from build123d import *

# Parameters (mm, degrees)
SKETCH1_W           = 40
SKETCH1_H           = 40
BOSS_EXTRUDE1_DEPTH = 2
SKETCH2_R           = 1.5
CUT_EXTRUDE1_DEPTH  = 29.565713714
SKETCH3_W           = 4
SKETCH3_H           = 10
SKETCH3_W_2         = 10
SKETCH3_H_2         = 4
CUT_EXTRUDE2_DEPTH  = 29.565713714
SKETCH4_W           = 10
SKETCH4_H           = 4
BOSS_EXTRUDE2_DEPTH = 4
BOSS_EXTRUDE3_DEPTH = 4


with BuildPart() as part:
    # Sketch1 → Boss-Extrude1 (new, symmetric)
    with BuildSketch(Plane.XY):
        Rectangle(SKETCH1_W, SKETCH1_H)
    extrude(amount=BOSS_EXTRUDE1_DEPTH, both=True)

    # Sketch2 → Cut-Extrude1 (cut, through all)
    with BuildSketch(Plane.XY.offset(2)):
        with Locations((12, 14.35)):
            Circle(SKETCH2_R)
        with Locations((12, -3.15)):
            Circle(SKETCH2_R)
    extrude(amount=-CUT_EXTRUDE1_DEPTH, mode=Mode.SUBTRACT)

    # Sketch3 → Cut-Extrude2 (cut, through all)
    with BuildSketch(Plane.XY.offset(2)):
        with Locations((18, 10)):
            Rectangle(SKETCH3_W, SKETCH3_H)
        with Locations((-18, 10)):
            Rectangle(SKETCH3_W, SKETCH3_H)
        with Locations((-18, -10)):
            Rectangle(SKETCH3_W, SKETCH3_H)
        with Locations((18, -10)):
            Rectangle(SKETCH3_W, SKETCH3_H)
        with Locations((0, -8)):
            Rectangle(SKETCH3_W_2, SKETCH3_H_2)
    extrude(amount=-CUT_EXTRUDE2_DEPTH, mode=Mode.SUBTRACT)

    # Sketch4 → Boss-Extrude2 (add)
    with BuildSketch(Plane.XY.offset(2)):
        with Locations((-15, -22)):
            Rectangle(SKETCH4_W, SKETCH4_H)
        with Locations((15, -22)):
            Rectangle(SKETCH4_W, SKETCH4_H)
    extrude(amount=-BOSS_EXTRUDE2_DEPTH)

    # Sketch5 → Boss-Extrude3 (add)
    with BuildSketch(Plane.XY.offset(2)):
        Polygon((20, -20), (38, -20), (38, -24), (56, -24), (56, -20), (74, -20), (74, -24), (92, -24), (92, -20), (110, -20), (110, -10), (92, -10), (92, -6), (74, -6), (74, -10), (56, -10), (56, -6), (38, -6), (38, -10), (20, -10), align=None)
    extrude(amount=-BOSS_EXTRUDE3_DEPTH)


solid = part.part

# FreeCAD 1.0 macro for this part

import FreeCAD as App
import Part
import Sketcher
Q = App.Units.Quantity

doc = App.newDocument("Part")
body = doc.addObject("PartDesign::Body", "Body")

sketch1 = doc.addObject("Sketcher::SketchObject", "Sketch")
body.addObject(sketch1)
sketch1.AttachmentSupport = (doc.XY_Plane, [""])
sketch1.MapMode = "FlatFace"
sketch1.addGeometry([
    Part.LineSegment(App.Vector(-20, 20, 0), App.Vector(-20, -20, 0)),
    Part.LineSegment(App.Vector(-20, -20, 0), App.Vector(20, -20, 0)),
    Part.LineSegment(App.Vector(20, -20, 0), App.Vector(20, 20, 0)),
    Part.LineSegment(App.Vector(20, 20, 0), App.Vector(-20, 20, 0)),
], False)
sketch1.addConstraint([
    Sketcher.Constraint("Coincident", 0, 2, 1, 1),
    Sketcher.Constraint("Coincident", 1, 2, 2, 1),
    Sketcher.Constraint("Coincident", 2, 2, 3, 1),
    Sketcher.Constraint("Coincident", 3, 2, 0, 1),
    Sketcher.Constraint("Vertical", 0),
    Sketcher.Constraint("Horizontal", 1),
    Sketcher.Constraint("Vertical", 2),
    Sketcher.Constraint("Horizontal", 3),
    Sketcher.Constraint("Symmetric", 0, 2, 2, 2, -1, 1),
    Sketcher.Constraint("Equal", 3, 0),
    Sketcher.Constraint("DistanceX", 1, 1, 1, 2, Q("40 mm")),
])
pad1 = doc.addObject("PartDesign::Pad", "Pad")
body.addObject(pad1)
pad1.Profile = sketch1
pad1.Length = 4
pad1.Midplane = True

sketch2 = doc.addObject("Sketcher::SketchObject", "Sketch001")
body.addObject(sketch2)
sketch2.AttachmentSupport = (doc.XY_Plane, [""])
sketch2.MapMode = "FlatFace"
sketch2.AttachmentOffset = App.Placement(App.Vector(0, 0, 2), App.Rotation())
sketch2.addGeometry([
    Part.Circle(App.Vector(12, 14.3, 0), App.Vector(0, 0, 1), 1.5),
    Part.Circle(App.Vector(12, -3.1, 0), App.Vector(0, 0, 1), 1.5),
], False)
sketch2.addConstraint([
    Sketcher.Constraint("Equal", 0, 1),
    Sketcher.Constraint("Vertical", 0, 3, 1, 3),
    Sketcher.Constraint("Diameter", 0, Q("3 mm")),
    Sketcher.Constraint("DistanceX", -1, 1, 0, 3, Q("12 mm")),
    Sketcher.Constraint("DistanceY", 1, 3, 0, 3, Q("17.5 mm")),
    Sketcher.Constraint("DistanceY", -1, 1, 0, 3, Q("14.35 mm")),
])
pocket1 = doc.addObject("PartDesign::Pocket", "Pocket")
body.addObject(pocket1)
pocket1.Profile = sketch2
pocket1.Type = "ThroughAll"

sketch3 = doc.addObject("Sketcher::SketchObject", "Sketch002")
body.addObject(sketch3)
sketch3.AttachmentSupport = (doc.XY_Plane, [""])
sketch3.MapMode = "FlatFace"
sketch3.AttachmentOffset = App.Placement(App.Vector(0, 0, 2), App.Rotation())
sketch3.addGeometry([
    Part.LineSegment(App.Vector(16, 15, 0), App.Vector(16, 5, 0)),
    Part.LineSegment(App.Vector(16, 5, 0), App.Vector(20, 5, 0)),
    Part.LineSegment(App.Vector(20, 5, 0), App.Vector(20, 15, 0)),
    Part.LineSegment(App.Vector(20, 15, 0), App.Vector(16, 15, 0)),
    Part.LineSegment(App.Vector(-20, 15, 0), App.Vector(-20, 5, 0)),
    Part.LineSegment(App.Vector(-20, 5, 0), App.Vector(-16, 5, 0)),
    Part.LineSegment(App.Vector(-16, 5, 0), App.Vector(-16, 15, 0)),
    Part.LineSegment(App.Vector(-16, 15, 0), App.Vector(-20, 15, 0)),
    Part.LineSegment(App.Vector(-20, -5, 0), App.Vector(-20, -15, 0)),
    Part.LineSegment(App.Vector(-20, -15, 0), App.Vector(-16, -15, 0)),
    Part.LineSegment(App.Vector(-16, -15, 0), App.Vector(-16, -5, 0)),
    Part.LineSegment(App.Vector(-16, -5, 0), App.Vector(-20, -5, 0)),
    Part.LineSegment(App.Vector(16, -5, 0), App.Vector(16, -15, 0)),
    Part.LineSegment(App.Vector(16, -15, 0), App.Vector(20, -15, 0)),
    Part.LineSegment(App.Vector(20, -15, 0), App.Vector(20, -5, 0)),
    Part.LineSegment(App.Vector(20, -5, 0), App.Vector(16, -5, 0)),
    Part.LineSegment(App.Vector(-5, -6, 0), App.Vector(-5, -10, 0)),
    Part.LineSegment(App.Vector(-5, -10, 0), App.Vector(5, -10, 0)),
    Part.LineSegment(App.Vector(5, -10, 0), App.Vector(5, -6, 0)),
    Part.LineSegment(App.Vector(5, -6, 0), App.Vector(-5, -6, 0)),
], False)
sketch3.addConstraint([
    Sketcher.Constraint("Coincident", 0, 2, 1, 1),
    Sketcher.Constraint("Coincident", 1, 2, 2, 1),
    Sketcher.Constraint("Coincident", 2, 2, 3, 1),
    Sketcher.Constraint("Coincident", 3, 2, 0, 1),
    Sketcher.Constraint("Coincident", 4, 2, 5, 1),
    Sketcher.Constraint("Coincident", 5, 2, 6, 1),
    Sketcher.Constraint("Coincident", 6, 2, 7, 1),
    Sketcher.Constraint("Coincident", 7, 2, 4, 1),
    Sketcher.Constraint("Coincident", 8, 2, 9, 1),
    Sketcher.Constraint("Coincident", 9, 2, 10, 1),
    Sketcher.Constraint("Coincident", 10, 2, 11, 1),
    Sketcher.Constraint("Coincident", 11, 2, 8, 1),
    Sketcher.Constraint("Coincident", 12, 2, 13, 1),
    Sketcher.Constraint("Coincident", 13, 2, 14, 1),
    Sketcher.Constraint("Coincident", 14, 2, 15, 1),
    Sketcher.Constraint("Coincident", 15, 2, 12, 1),
    Sketcher.Constraint("Coincident", 16, 2, 17, 1),
    Sketcher.Constraint("Coincident", 17, 2, 18, 1),
    Sketcher.Constraint("Coincident", 18, 2, 19, 1),
    Sketcher.Constraint("Coincident", 19, 2, 16, 1),
    Sketcher.Constraint("Vertical", 0),
    Sketcher.Constraint("Horizontal", 1),
    Sketcher.Constraint("Vertical", 2),
    Sketcher.Constraint("Horizontal", 3),
    Sketcher.Constraint("Vertical", 4),
    Sketcher.Constraint("Horizontal", 5),
    Sketcher.Constraint("Vertical", 6),
    Sketcher.Constraint("Horizontal", 7),
    Sketcher.Constraint("Vertical", 8),
    Sketcher.Constraint("Horizontal", 9),
    Sketcher.Constraint("Vertical", 10),
    Sketcher.Constraint("Horizontal", 11),
    Sketcher.Constraint("Vertical", 12),
    Sketcher.Constraint("Horizontal", 13),
    Sketcher.Constraint("Vertical", 14),
    Sketcher.Constraint("Horizontal", 15),
    Sketcher.Constraint("Vertical", 16),
    Sketcher.Constraint("Horizontal", 17),
    Sketcher.Constraint("Vertical", 18),
    Sketcher.Constraint("Horizontal", 19),
    Sketcher.Constraint("Symmetric", 2, 2, 8, 2, -1, 1),
    Sketcher.Constraint("Symmetric", 0, 2, 10, 2, -1, 1),
    Sketcher.Constraint("Symmetric", 6, 2, 12, 2, -1, 1),
    Sketcher.Constraint("Symmetric", 4, 2, 14, 2, -1, 1),
    Sketcher.Constraint("Symmetric", 1, 2, 4, 2, -2),
    Sketcher.Constraint("Symmetric", 3, 2, 6, 2, -2),
    Sketcher.Constraint("Equal", 19, 0),
    Sketcher.Constraint("Equal", 15, 16),
    Sketcher.Constraint("DistanceX", 1, 1, 1, 2, Q("4 mm")),
    Sketcher.Constraint("DistanceX", 17, 1, 17, 2, Q("10 mm")),
    Sketcher.Constraint("DistanceX", -1, 1, 0, 2, Q("16 mm")),
    Sketcher.Constraint("DistanceY", -1, 1, 0, 2, Q("5 mm")),
    Sketcher.Constraint("DistanceX", 16, 2, -1, 1, Q("5 mm")),
    Sketcher.Constraint("DistanceY", 16, 2, -1, 1, Q("10 mm")),
])
pocket2 = doc.addObject("PartDesign::Pocket", "Pocket001")
body.addObject(pocket2)
pocket2.Profile = sketch3
pocket2.Type = "ThroughAll"

sketch4 = doc.addObject("Sketcher::SketchObject", "Sketch003")
body.addObject(sketch4)
sketch4.AttachmentSupport = (doc.XY_Plane, [""])
sketch4.MapMode = "FlatFace"
sketch4.AttachmentOffset = App.Placement(App.Vector(0, 0, 2), App.Rotation())
sketch4.addGeometry([
    Part.LineSegment(App.Vector(-20, -20, 0), App.Vector(-20, -24, 0)),
    Part.LineSegment(App.Vector(-20, -24, 0), App.Vector(-10, -24, 0)),
    Part.LineSegment(App.Vector(-10, -24, 0), App.Vector(-10, -20, 0)),
    Part.LineSegment(App.Vector(-10, -20, 0), App.Vector(-20, -20, 0)),
    Part.LineSegment(App.Vector(10, -20, 0), App.Vector(10, -24, 0)),
    Part.LineSegment(App.Vector(10, -24, 0), App.Vector(20, -24, 0)),
    Part.LineSegment(App.Vector(20, -24, 0), App.Vector(20, -20, 0)),
    Part.LineSegment(App.Vector(20, -20, 0), App.Vector(10, -20, 0)),
], False)
sketch4.addConstraint([
    Sketcher.Constraint("Coincident", 0, 2, 1, 1),
    Sketcher.Constraint("Coincident", 1, 2, 2, 1),
    Sketcher.Constraint("Coincident", 2, 2, 3, 1),
    Sketcher.Constraint("Coincident", 3, 2, 0, 1),
    Sketcher.Constraint("Coincident", 4, 2, 5, 1),
    Sketcher.Constraint("Coincident", 5, 2, 6, 1),
    Sketcher.Constraint("Coincident", 6, 2, 7, 1),
    Sketcher.Constraint("Coincident", 7, 2, 4, 1),
    Sketcher.Constraint("Vertical", 0),
    Sketcher.Constraint("Horizontal", 1),
    Sketcher.Constraint("Vertical", 2),
    Sketcher.Constraint("Horizontal", 3),
    Sketcher.Constraint("Vertical", 4),
    Sketcher.Constraint("Horizontal", 5),
    Sketcher.Constraint("Vertical", 6),
    Sketcher.Constraint("Horizontal", 7),
    Sketcher.Constraint("Symmetric", 1, 2, 4, 2, -2),
    Sketcher.Constraint("Symmetric", 3, 2, 6, 2, -2),
    Sketcher.Constraint("DistanceX", 1, 1, 1, 2, Q("10 mm")),
    Sketcher.Constraint("DistanceY", 0, 2, 0, 1, Q("4 mm")),
    Sketcher.Constraint("DistanceX", 0, 2, -1, 1, Q("20 mm")),
    Sketcher.Constraint("DistanceY", 0, 2, -1, 1, Q("24 mm")),
])
pad2 = doc.addObject("PartDesign::Pad", "Pad001")
body.addObject(pad2)
pad2.Profile = sketch4
pad2.Length = 4
pad2.Reversed = True

sketch5 = doc.addObject("Sketcher::SketchObject", "Sketch004")
body.addObject(sketch5)
sketch5.AttachmentSupport = (doc.XY_Plane, [""])
sketch5.MapMode = "FlatFace"
sketch5.AttachmentOffset = App.Placement(App.Vector(0, 0, 2), App.Rotation())
sketch5.addGeometry([
    Part.LineSegment(App.Vector(20, -20, 0), App.Vector(38, -20, 0)),
    Part.LineSegment(App.Vector(38, -20, 0), App.Vector(38, -24, 0)),
    Part.LineSegment(App.Vector(38, -24, 0), App.Vector(56, -24, 0)),
    Part.LineSegment(App.Vector(56, -24, 0), App.Vector(56, -20, 0)),
    Part.LineSegment(App.Vector(56, -20, 0), App.Vector(74, -20, 0)),
    Part.LineSegment(App.Vector(74, -20, 0), App.Vector(74, -24, 0)),
    Part.LineSegment(App.Vector(74, -24, 0), App.Vector(92, -24, 0)),
    Part.LineSegment(App.Vector(92, -24, 0), App.Vector(92, -20, 0)),
    Part.LineSegment(App.Vector(92, -20, 0), App.Vector(110, -20, 0)),
    Part.LineSegment(App.Vector(110, -20, 0), App.Vector(110, -10, 0)),
    Part.LineSegment(App.Vector(110, -10, 0), App.Vector(92, -10, 0)),
    Part.LineSegment(App.Vector(92, -10, 0), App.Vector(92, -6, 0)),
    Part.LineSegment(App.Vector(92, -6, 0), App.Vector(74, -6, 0)),
    Part.LineSegment(App.Vector(74, -6, 0), App.Vector(74, -10, 0)),
    Part.LineSegment(App.Vector(74, -10, 0), App.Vector(56, -10, 0)),
    Part.LineSegment(App.Vector(56, -10, 0), App.Vector(56, -6, 0)),
    Part.LineSegment(App.Vector(56, -6, 0), App.Vector(38, -6, 0)),
    Part.LineSegment(App.Vector(38, -6, 0), App.Vector(38, -10, 0)),
    Part.LineSegment(App.Vector(38, -10, 0), App.Vector(20, -10, 0)),
    Part.LineSegment(App.Vector(20, -10, 0), App.Vector(20, -20, 0)),
], False)
sketch5.addConstraint([
    Sketcher.Constraint("Coincident", 0, 2, 1, 1),
    Sketcher.Constraint("Coincident", 1, 2, 2, 1),
    Sketcher.Constraint("Coincident", 2, 2, 3, 1),
    Sketcher.Constraint("Coincident", 3, 2, 4, 1),
    Sketcher.Constraint("Coincident", 4, 2, 5, 1),
    Sketcher.Constraint("Coincident", 5, 2, 6, 1),
    Sketcher.Constraint("Coincident", 6, 2, 7, 1),
    Sketcher.Constraint("Coincident", 7, 2, 8, 1),
    Sketcher.Constraint("Coincident", 8, 2, 9, 1),
    Sketcher.Constraint("Coincident", 9, 2, 10, 1),
    Sketcher.Constraint("Coincident", 10, 2, 11, 1),
    Sketcher.Constraint("Coincident", 11, 2, 12, 1),
    Sketcher.Constraint("Coincident", 12, 2, 13, 1),
    Sketcher.Constraint("Coincident", 13, 2, 14, 1),
    Sketcher.Constraint("Coincident", 14, 2, 15, 1),
    Sketcher.Constraint("Coincident", 15, 2, 16, 1),
    Sketcher.Constraint("Coincident", 16, 2, 17, 1),
    Sketcher.Constraint("Coincident", 17, 2, 18, 1),
    Sketcher.Constraint("Coincident", 18, 2, 19, 1),
    Sketcher.Constraint("Coincident", 19, 2, 0, 1),
    Sketcher.Constraint("Horizontal", 0),
    Sketcher.Constraint("Vertical", 1),
    Sketcher.Constraint("Horizontal", 2),
    Sketcher.Constraint("Vertical", 3),
    Sketcher.Constraint("Horizontal", 4),
    Sketcher.Constraint("Vertical", 5),
    Sketcher.Constraint("Horizontal", 6),
    Sketcher.Constraint("Vertical", 7),
    Sketcher.Constraint("Horizontal", 8),
    Sketcher.Constraint("Vertical", 9),
    Sketcher.Constraint("Horizontal", 10),
    Sketcher.Constraint("Vertical", 11),
    Sketcher.Constraint("Horizontal", 12),
    Sketcher.Constraint("Vertical", 13),
    Sketcher.Constraint("Horizontal", 14),
    Sketcher.Constraint("Vertical", 15),
    Sketcher.Constraint("Horizontal", 16),
    Sketcher.Constraint("Vertical", 17),
    Sketcher.Constraint("Horizontal", 18),
    Sketcher.Constraint("Vertical", 19),
    Sketcher.Constraint("Horizontal", 0, 2, 3, 2),
    Sketcher.Constraint("Horizontal", 2, 2, 5, 2),
    Sketcher.Constraint("Horizontal", 4, 2, 7, 2),
    Sketcher.Constraint("Horizontal", 10, 2, 13, 2),
    Sketcher.Constraint("Horizontal", 12, 2, 15, 2),
    Sketcher.Constraint("Horizontal", 14, 2, 17, 2),
    Sketcher.Constraint("Vertical", 7, 2, 10, 2),
    Sketcher.Constraint("Vertical", 5, 2, 12, 2),
    Sketcher.Constraint("Vertical", 3, 2, 14, 2),
    Sketcher.Constraint("Vertical", 1, 2, 16, 2),
    Sketcher.Constraint("Equal", 0, 2),
    Sketcher.Constraint("Equal", 2, 4),
    Sketcher.Constraint("Equal", 4, 6),
    Sketcher.Constraint("Equal", 6, 8),
    Sketcher.Constraint("Equal", 7, 11),
    Sketcher.Constraint("DistanceX", 0, 1, 0, 2, Q("18 mm")),
    Sketcher.Constraint("DistanceY", 1, 2, 1, 1, Q("4 mm")),
    Sketcher.Constraint("DistanceY", 9, 1, 9, 2, Q("10 mm")),
    Sketcher.Constraint("DistanceX", -1, 1, 0, 2, Q("38 mm")),
    Sketcher.Constraint("DistanceY", 0, 2, -1, 1, Q("20 mm")),
])
pad3 = doc.addObject("PartDesign::Pad", "Pad002")
body.addObject(pad3)
pad3.Profile = sketch5
pad3.Length = 4
pad3.Reversed = True

doc.recompute()
